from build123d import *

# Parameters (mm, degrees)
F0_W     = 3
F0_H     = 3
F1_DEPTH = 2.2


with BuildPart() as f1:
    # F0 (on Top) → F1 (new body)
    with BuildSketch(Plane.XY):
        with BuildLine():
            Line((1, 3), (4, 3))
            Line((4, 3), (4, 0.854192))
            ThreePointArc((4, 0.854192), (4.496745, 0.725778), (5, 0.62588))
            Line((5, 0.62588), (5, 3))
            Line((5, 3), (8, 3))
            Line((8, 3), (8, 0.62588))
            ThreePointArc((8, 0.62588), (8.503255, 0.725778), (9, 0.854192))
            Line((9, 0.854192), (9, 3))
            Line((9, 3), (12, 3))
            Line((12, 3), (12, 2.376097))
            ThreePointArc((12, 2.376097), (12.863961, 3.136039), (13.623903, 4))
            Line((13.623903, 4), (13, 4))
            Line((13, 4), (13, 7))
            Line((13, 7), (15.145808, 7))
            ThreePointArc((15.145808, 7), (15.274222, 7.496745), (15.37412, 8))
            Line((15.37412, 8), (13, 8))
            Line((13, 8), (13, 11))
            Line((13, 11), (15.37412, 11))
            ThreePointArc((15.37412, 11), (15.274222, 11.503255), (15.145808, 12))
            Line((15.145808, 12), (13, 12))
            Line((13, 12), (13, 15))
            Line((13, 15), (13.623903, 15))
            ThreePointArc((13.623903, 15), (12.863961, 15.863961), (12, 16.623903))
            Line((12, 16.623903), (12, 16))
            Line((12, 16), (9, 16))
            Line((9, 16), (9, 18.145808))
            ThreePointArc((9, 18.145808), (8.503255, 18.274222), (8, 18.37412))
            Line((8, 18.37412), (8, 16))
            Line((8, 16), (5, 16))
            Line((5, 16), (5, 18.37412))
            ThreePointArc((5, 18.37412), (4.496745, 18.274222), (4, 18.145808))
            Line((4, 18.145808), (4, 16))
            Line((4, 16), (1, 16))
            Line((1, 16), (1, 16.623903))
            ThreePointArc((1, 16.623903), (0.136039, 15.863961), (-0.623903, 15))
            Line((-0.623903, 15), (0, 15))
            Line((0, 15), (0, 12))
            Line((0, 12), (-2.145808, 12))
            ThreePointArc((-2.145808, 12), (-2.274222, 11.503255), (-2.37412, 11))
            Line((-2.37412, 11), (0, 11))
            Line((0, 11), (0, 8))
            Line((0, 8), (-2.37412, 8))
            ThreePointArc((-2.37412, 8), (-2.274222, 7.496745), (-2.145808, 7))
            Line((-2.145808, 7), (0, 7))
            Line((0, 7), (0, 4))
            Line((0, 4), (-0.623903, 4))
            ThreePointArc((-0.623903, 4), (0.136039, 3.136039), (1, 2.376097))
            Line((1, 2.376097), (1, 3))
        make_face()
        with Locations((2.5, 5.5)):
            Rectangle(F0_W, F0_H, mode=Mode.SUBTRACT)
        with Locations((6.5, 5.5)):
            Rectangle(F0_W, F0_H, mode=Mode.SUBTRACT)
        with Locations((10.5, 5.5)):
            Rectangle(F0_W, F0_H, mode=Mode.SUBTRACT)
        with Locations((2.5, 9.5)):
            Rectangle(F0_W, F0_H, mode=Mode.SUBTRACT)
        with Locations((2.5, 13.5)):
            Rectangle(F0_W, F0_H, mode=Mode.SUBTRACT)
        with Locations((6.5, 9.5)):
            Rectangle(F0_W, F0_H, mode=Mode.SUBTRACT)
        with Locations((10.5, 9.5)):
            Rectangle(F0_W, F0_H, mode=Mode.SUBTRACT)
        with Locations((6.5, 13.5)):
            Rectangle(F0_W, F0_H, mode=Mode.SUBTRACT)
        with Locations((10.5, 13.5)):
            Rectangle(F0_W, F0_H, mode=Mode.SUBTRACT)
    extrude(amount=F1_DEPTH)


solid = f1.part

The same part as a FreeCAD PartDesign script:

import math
import FreeCAD as App
import Part
import Sketcher

V = App.Vector
Q = App.Units.Quantity


def add_polygon(sketch, points):
    """Adds a closed chain of lines whose ends are joined by coincident constraints."""
    first, n = sketch.GeometryCount, len(points)
    for a, b in zip(points, points[1:] + points[:1]):
        sketch.addGeometry(Part.LineSegment(App.Vector(*a, 0), App.Vector(*b, 0)), False)
    for i in range(n):
        sketch.addConstraint(Sketcher.Constraint("Coincident", first + i, 2, first + (i + 1) % n, 1))

doc = App.newDocument("Part")
body = doc.addObject("PartDesign::Body", "Body")

# Sketch on XY plane
sketch1 = body.newObject("Sketcher::SketchObject", "Sketch")
sketch1.AttachmentSupport = (doc.getObject("XY_Plane"), [""])
sketch1.MapMode = "FlatFace"
sketch1.addGeometry(Part.LineSegment(V(1, 3, 0), V(4, 3, 0)), False)  # 0
sketch1.addGeometry(Part.LineSegment(V(4, 3, 0), V(4, 0.854192, 0)), False)  # 1
sketch1.addGeometry(Part.ArcOfCircle(Part.Circle(V(6.499994, 9.499951, 0), V(0, 0, 1), 8.999951), math.radians(-106.127669), math.radians(-99.594081)), False)  # 2
sketch1.addGeometry(Part.LineSegment(V(5, 0.62588, 0), V(5, 3, 0)), False)  # 3
sketch1.addGeometry(Part.LineSegment(V(5, 3, 0), V(8, 3, 0)), False)  # 4
sketch1.addGeometry(Part.LineSegment(V(8, 3, 0), V(8, 0.62588, 0)), False)  # 5
sketch1.addGeometry(Part.ArcOfCircle(Part.Circle(V(6.500006, 9.499951, 0), V(0, 0, 1), 8.999951), math.radians(-80.405919), math.radians(-73.872331)), False)  # 6
sketch1.addGeometry(Part.LineSegment(V(9, 0.854192, 0), V(9, 3, 0)), False)  # 7
sketch1.addGeometry(Part.LineSegment(V(9, 3, 0), V(12, 3, 0)), False)  # 8
sketch1.addGeometry(Part.LineSegment(V(12, 3, 0), V(12, 2.376097, 0)), False)  # 9
sketch1.addGeometry(Part.ArcOfCircle(Part.Circle(V(6.500025, 9.499975, 0), V(0, 0, 1), 8.999964), math.radians(-52.33014), math.radians(-37.66986)), False)  # 10
sketch1.addGeometry(Part.LineSegment(V(13.623903, 4, 0), V(13, 4, 0)), False)  # 11
sketch1.addGeometry(Part.LineSegment(V(13, 4, 0), V(13, 7, 0)), False)  # 12
sketch1.addGeometry(Part.LineSegment(V(13, 7, 0), V(15.145808, 7, 0)), False)  # 13
sketch1.addGeometry(Part.ArcOfCircle(Part.Circle(V(6.500049, 9.499994, 0), V(0, 0, 1), 8.999951), math.radians(-16.127669), math.radians(-9.594081)), False)  # 14
sketch1.addGeometry(Part.LineSegment(V(15.37412, 8, 0), V(13, 8, 0)), False)  # 15
sketch1.addGeometry(Part.LineSegment(V(13, 8, 0), V(13, 11, 0)), False)  # 16
sketch1.addGeometry(Part.LineSegment(V(13, 11, 0), V(15.37412, 11, 0)), False)  # 17
sketch1.addGeometry(Part.ArcOfCircle(Part.Circle(V(6.500049, 9.500006, 0), V(0, 0, 1), 8.999951), math.radians(9.594081), math.radians(16.127669)), False)  # 18
sketch1.addGeometry(Part.LineSegment(V(15.145808, 12, 0), V(13, 12, 0)), False)  # 19
sketch1.addGeometry(Part.LineSegment(V(13, 12, 0), V(13, 15, 0)), False)  # 20
sketch1.addGeometry(Part.LineSegment(V(13, 15, 0), V(13.623903, 15, 0)), False)  # 21
sketch1.addGeometry(Part.ArcOfCircle(Part.Circle(V(6.500025, 9.500025, 0), V(0, 0, 1), 8.999964), math.radians(37.66986), math.radians(52.33014)), False)  # 22
sketch1.addGeometry(Part.LineSegment(V(12, 16.623903, 0), V(12, 16, 0)), False)  # 23
sketch1.addGeometry(Part.LineSegment(V(12, 16, 0), V(9, 16, 0)), False)  # 24
sketch1.addGeometry(Part.LineSegment(V(9, 16, 0), V(9, 18.145808, 0)), False)  # 25
sketch1.addGeometry(Part.ArcOfCircle(Part.Circle(V(6.500006, 9.500049, 0), V(0, 0, 1), 8.999951), math.radians(73.872331), math.radians(80.405919)), False)  # 26
sketch1.addGeometry(Part.LineSegment(V(8, 18.37412, 0), V(8, 16, 0)), False)  # 27
sketch1.addGeometry(Part.LineSegment(V(8, 16, 0), V(5, 16, 0)), False)  # 28
sketch1.addGeometry(Part.LineSegment(V(5, 16, 0), V(5, 18.37412, 0)), False)  # 29
sketch1.addGeometry(Part.ArcOfCircle(Part.Circle(V(6.499994, 9.500049, 0), V(0, 0, 1), 8.999951), math.radians(99.594081), math.radians(106.127669)), False)  # 30
sketch1.addGeometry(Part.LineSegment(V(4, 18.145808, 0), V(4, 16, 0)), False)  # 31
sketch1.addGeometry(Part.LineSegment(V(4, 16, 0), V(1, 16, 0)), False)  # 32
sketch1.addGeometry(Part.LineSegment(V(1, 16, 0), V(1, 16.623903, 0)), False)  # 33
sketch1.addGeometry(Part.ArcOfCircle(Part.Circle(V(6.499975, 9.500025, 0), V(0, 0, 1), 8.999964), math.radians(127.66986), math.radians(142.33014)), False)  # 34
sketch1.addGeometry(Part.LineSegment(V(-0.623903, 15, 0), V(0, 15, 0)), False)  # 35
sketch1.addGeometry(Part.LineSegment(V(0, 15, 0), V(0, 12, 0)), False)  # 36
sketch1.addGeometry(Part.LineSegment(V(0, 12, 0), V(-2.145808, 12, 0)), False)  # 37
sketch1.addGeometry(Part.ArcOfCircle(Part.Circle(V(6.499951, 9.500006, 0), V(0, 0, 1), 8.999951), math.radians(163.872331), math.radians(170.405919)), False)  # 38
sketch1.addGeometry(Part.LineSegment(V(-2.37412, 11, 0), V(0, 11, 0)), False)  # 39
sketch1.addGeometry(Part.LineSegment(V(0, 11, 0), V(0, 8, 0)), False)  # 40
sketch1.addGeometry(Part.LineSegment(V(0, 8, 0), V(-2.37412, 8, 0)), False)  # 41
sketch1.addGeometry(Part.ArcOfCircle(Part.Circle(V(6.499951, 9.499994, 0), V(0, 0, 1), 8.999951), math.radians(-170.405919), math.radians(-163.872331)), False)  # 42
sketch1.addGeometry(Part.LineSegment(V(-2.145808, 7, 0), V(0, 7, 0)), False)  # 43
sketch1.addGeometry(Part.LineSegment(V(0, 7, 0), V(0, 4, 0)), False)  # 44
sketch1.addGeometry(Part.LineSegment(V(0, 4, 0), V(-0.623903, 4, 0)), False)  # 45
sketch1.addGeometry(Part.ArcOfCircle(Part.Circle(V(6.499975, 9.499975, 0), V(0, 0, 1), 8.999964), math.radians(-142.33014), math.radians(-127.66986)), False)  # 46
sketch1.addGeometry(Part.LineSegment(V(1, 2.376097, 0), V(1, 3, 0)), False)  # 47
add_polygon(sketch1, [(4, 4), (1, 4), (1, 7), (4, 7)])  # lines 48-51
add_polygon(sketch1, [(8, 4), (5, 4), (5, 7), (8, 7)])  # lines 52-55
add_polygon(sketch1, [(12, 4), (9, 4), (9, 7), (12, 7)])  # lines 56-59
add_polygon(sketch1, [(4, 8), (1, 8), (1, 11), (4, 11)])  # lines 60-63
add_polygon(sketch1, [(4, 12), (1, 12), (1, 15), (4, 15)])  # lines 64-67
add_polygon(sketch1, [(8, 8), (5, 8), (5, 11), (8, 11)])  # lines 68-71
add_polygon(sketch1, [(12, 8), (9, 8), (9, 11), (12, 11)])  # lines 72-75
add_polygon(sketch1, [(8, 12), (5, 12), (5, 15), (8, 15)])  # lines 76-79
add_polygon(sketch1, [(12, 12), (9, 12), (9, 15), (12, 15)])  # lines 80-83
sketch1.addConstraint([
    Sketcher.Constraint("Coincident", 0, 2, 1, 1),
    Sketcher.Constraint("Coincident", 1, 2, 2, 1),
    Sketcher.Constraint("Coincident", 2, 2, 3, 1),
    Sketcher.Constraint("Coincident", 3, 2, 4, 1),
    Sketcher.Constraint("Coincident", 4, 2, 5, 1),
    Sketcher.Constraint("Coincident", 5, 2, 6, 1),
    Sketcher.Constraint("Coincident", 6, 2, 7, 1),
    Sketcher.Constraint("Coincident", 7, 2, 8, 1),
    Sketcher.Constraint("Coincident", 8, 2, 9, 1),
    Sketcher.Constraint("Coincident", 9, 2, 10, 1),
    Sketcher.Constraint("Coincident", 10, 2, 11, 1),
    Sketcher.Constraint("Coincident", 11, 2, 12, 1),
    Sketcher.Constraint("Coincident", 12, 2, 13, 1),
    Sketcher.Constraint("Coincident", 13, 2, 14, 1),
    Sketcher.Constraint("Coincident", 14, 2, 15, 1),
    Sketcher.Constraint("Coincident", 15, 2, 16, 1),
    Sketcher.Constraint("Coincident", 16, 2, 17, 1),
    Sketcher.Constraint("Coincident", 17, 2, 18, 1),
    Sketcher.Constraint("Coincident", 18, 2, 19, 1),
    Sketcher.Constraint("Coincident", 19, 2, 20, 1),
    Sketcher.Constraint("Coincident", 20, 2, 21, 1),
    Sketcher.Constraint("Coincident", 21, 2, 22, 1),
    Sketcher.Constraint("Coincident", 22, 2, 23, 1),
    Sketcher.Constraint("Coincident", 23, 2, 24, 1),
    Sketcher.Constraint("Coincident", 24, 2, 25, 1),
    Sketcher.Constraint("Coincident", 25, 2, 26, 1),
    Sketcher.Constraint("Coincident", 26, 2, 27, 1),
    Sketcher.Constraint("Coincident", 27, 2, 28, 1),
    Sketcher.Constraint("Coincident", 28, 2, 29, 1),
    Sketcher.Constraint("Coincident", 29, 2, 30, 1),
    Sketcher.Constraint("Coincident", 30, 2, 31, 1),
    Sketcher.Constraint("Coincident", 31, 2, 32, 1),
    Sketcher.Constraint("Coincident", 32, 2, 33, 1),
    Sketcher.Constraint("Coincident", 33, 2, 34, 1),
    Sketcher.Constraint("Coincident", 34, 2, 35, 1),
    Sketcher.Constraint("Coincident", 35, 2, 36, 1),
    Sketcher.Constraint("Coincident", 36, 2, 37, 1),
    Sketcher.Constraint("Coincident", 37, 2, 38, 1),
    Sketcher.Constraint("Coincident", 38, 2, 39, 1),
    Sketcher.Constraint("Coincident", 39, 2, 40, 1),
    Sketcher.Constraint("Coincident", 40, 2, 41, 1),
    Sketcher.Constraint("Coincident", 41, 2, 42, 1),
    Sketcher.Constraint("Coincident", 42, 2, 43, 1),
    Sketcher.Constraint("Coincident", 43, 2, 44, 1),
    Sketcher.Constraint("Coincident", 44, 2, 45, 1),
    Sketcher.Constraint("Coincident", 45, 2, 46, 1),
    Sketcher.Constraint("Coincident", 46, 2, 47, 1),
    Sketcher.Constraint("Coincident", 47, 2, 0, 1),
    Sketcher.Constraint("Horizontal", 0),
    Sketcher.Constraint("Vertical", 1),
    Sketcher.Constraint("Vertical", 3),
    Sketcher.Constraint("Horizontal", 4),
    Sketcher.Constraint("Vertical", 5),
    Sketcher.Constraint("Vertical", 7),
    Sketcher.Constraint("Horizontal", 8),
    Sketcher.Constraint("Vertical", 9),
    Sketcher.Constraint("Horizontal", 11),
    Sketcher.Constraint("Vertical", 12),
    Sketcher.Constraint("Horizontal", 13),
    Sketcher.Constraint("Horizontal", 15),
    Sketcher.Constraint("Vertical", 16),
    Sketcher.Constraint("Horizontal", 17),
    Sketcher.Constraint("Horizontal", 19),
    Sketcher.Constraint("Vertical", 20),
    Sketcher.Constraint("Horizontal", 21),
    Sketcher.Constraint("Vertical", 23),
    Sketcher.Constraint("Horizontal", 24),
    Sketcher.Constraint("Vertical", 25),
    Sketcher.Constraint("Vertical", 27),
    Sketcher.Constraint("Horizontal", 28),
    Sketcher.Constraint("Vertical", 29),
    Sketcher.Constraint("Vertical", 31),
    Sketcher.Constraint("Horizontal", 32),
    Sketcher.Constraint("Vertical", 33),
    Sketcher.Constraint("Horizontal", 35),
    Sketcher.Constraint("Vertical", 36),
    Sketcher.Constraint("Horizontal", 37),
    Sketcher.Constraint("Horizontal", 39),
    Sketcher.Constraint("Vertical", 40),
    Sketcher.Constraint("Horizontal", 41),
    Sketcher.Constraint("Horizontal", 43),
    Sketcher.Constraint("Vertical", 44),
    Sketcher.Constraint("Horizontal", 45),
    Sketcher.Constraint("Vertical", 47),
    Sketcher.Constraint("Horizontal", 48),
    Sketcher.Constraint("Vertical", 49),
    Sketcher.Constraint("Horizontal", 50),
    Sketcher.Constraint("Vertical", 51),
    Sketcher.Constraint("Horizontal", 52),
    Sketcher.Constraint("Vertical", 53),
    Sketcher.Constraint("Horizontal", 54),
    Sketcher.Constraint("Vertical", 55),
    Sketcher.Constraint("Horizontal", 56),
    Sketcher.Constraint("Vertical", 57),
    Sketcher.Constraint("Horizontal", 58),
    Sketcher.Constraint("Vertical", 59),
    Sketcher.Constraint("Horizontal", 60),
    Sketcher.Constraint("Vertical", 61),
    Sketcher.Constraint("Horizontal", 62),
    Sketcher.Constraint("Vertical", 63),
    Sketcher.Constraint("Horizontal", 64),
    Sketcher.Constraint("Vertical", 65),
    Sketcher.Constraint("Horizontal", 66),
    Sketcher.Constraint("Vertical", 67),
    Sketcher.Constraint("Horizontal", 68),
    Sketcher.Constraint("Vertical", 69),
    Sketcher.Constraint("Horizontal", 70),
    Sketcher.Constraint("Vertical", 71),
    Sketcher.Constraint("Horizontal", 72),
    Sketcher.Constraint("Vertical", 73),
    Sketcher.Constraint("Horizontal", 74),
    Sketcher.Constraint("Vertical", 75),
    Sketcher.Constraint("Horizontal", 76),
    Sketcher.Constraint("Vertical", 77),
    Sketcher.Constraint("Horizontal", 78),
    Sketcher.Constraint("Vertical", 79),
    Sketcher.Constraint("Horizontal", 80),
    Sketcher.Constraint("Vertical", 81),
    Sketcher.Constraint("Horizontal", 82),
    Sketcher.Constraint("Vertical", 83),
    Sketcher.Constraint("Equal", 2, 6),
    Sketcher.Constraint("Equal", 6, 14),
    Sketcher.Constraint("Equal", 14, 18),
    Sketcher.Constraint("Equal", 10, 22),
    Sketcher.Constraint("Equal", 18, 26),
    Sketcher.Constraint("Equal", 26, 30),
    Sketcher.Constraint("Equal", 22, 34),
    Sketcher.Constraint("Equal", 30, 38),
    Sketcher.Constraint("Equal", 38, 42),
    Sketcher.Constraint("Equal", 34, 46),
    Sketcher.Constraint("PointOnObject", 35, 2, -2),
    Sketcher.Constraint("PointOnObject", 39, 2, -2),
    Sketcher.Constraint("PointOnObject", 43, 2, -2),
    Sketcher.Constraint("Horizontal", 2, 3, 6, 3),
    Sketcher.Constraint("Horizontal", 26, 3, 30, 3),
    Sketcher.Constraint("Horizontal", 22, 3, 34, 3),
    Sketcher.Constraint("Horizontal", 18, 3, 38, 3),
    Sketcher.Constraint("Horizontal", 14, 3, 42, 3),
    Sketcher.Constraint("Horizontal", 10, 3, 46, 3),
    Sketcher.Constraint("Horizontal", 0, 2, 3, 2),
    Sketcher.Constraint("Horizontal", 2, 2, 5, 2),
    Sketcher.Constraint("Horizontal", 1, 2, 6, 2),
    Sketcher.Constraint("Horizontal", 4, 2, 7, 2),
    Sketcher.Constraint("Horizontal", 24, 2, 27, 2),
    Sketcher.Constraint("Horizontal", 26, 2, 29, 2),
    Sketcher.Constraint("Horizontal", 25, 2, 30, 2),
    Sketcher.Constraint("Horizontal", 28, 2, 31, 2),
    Sketcher.Constraint("Horizontal", 22, 2, 33, 2),
    Sketcher.Constraint("Horizontal", 21, 2, 34, 2),
    Sketcher.Constraint("Horizontal", 19, 2, 36, 2),
    Sketcher.Constraint("Horizontal", 17, 2, 38, 2),
    Sketcher.Constraint("Horizontal", 15, 2, 40, 2),
    Sketcher.Constraint("Horizontal", 13, 2, 42, 2),
    Sketcher.Constraint("Horizontal", 11, 2, 44, 2),
    Sketcher.Constraint("Horizontal", 9, 2, 46, 2),
    Sketcher.Constraint("Horizontal", 45, 2, 48, 2),
    Sketcher.Constraint("Horizontal", 43, 2, 49, 2),
    Sketcher.Constraint("Horizontal", 51, 2, 52, 2),
    Sketcher.Constraint("Horizontal", 50, 2, 53, 2),
    Sketcher.Constraint("Horizontal", 55, 2, 56, 2),
    Sketcher.Constraint("Horizontal", 54, 2, 57, 2),
    Sketcher.Constraint("Horizontal", 41, 2, 60, 2),
    Sketcher.Constraint("Horizontal", 39, 2, 61, 2),
    Sketcher.Constraint("Horizontal", 37, 2, 64, 2),
    Sketcher.Constraint("Horizontal", 35, 2, 65, 2),
    Sketcher.Constraint("Horizontal", 63, 2, 68, 2),
    Sketcher.Constraint("Horizontal", 62, 2, 69, 2),
    Sketcher.Constraint("Horizontal", 71, 2, 72, 2),
    Sketcher.Constraint("Horizontal", 70, 2, 73, 2),
    Sketcher.Constraint("Horizontal", 67, 2, 76, 2),
    Sketcher.Constraint("Horizontal", 66, 2, 77, 2),
    Sketcher.Constraint("Horizontal", 79, 2, 80, 2),
    Sketcher.Constraint("Horizontal", 78, 2, 81, 2),
    Sketcher.Constraint("Vertical", 14, 3, 18, 3),
    Sketcher.Constraint("Vertical", 10, 3, 22, 3),
    Sketcher.Constraint("Vertical", 6, 3, 26, 3),
    Sketcher.Constraint("Vertical", 2, 3, 30, 3),
    Sketcher.Constraint("Vertical", 38, 3, 42, 3),
    Sketcher.Constraint("Vertical", 34, 3, 46, 3),
    Sketcher.Constraint("Vertical", 12, 2, 15, 2),
    Sketcher.Constraint("Vertical", 14, 2, 17, 2),
    Sketcher.Constraint("Vertical", 13, 2, 18, 2),
    Sketcher.Constraint("Vertical", 16, 2, 19, 2),
    Sketcher.Constraint("Vertical", 10, 2, 21, 2),
    Sketcher.Constraint("Vertical", 9, 2, 22, 2),
    Sketcher.Constraint("Vertical", 7, 2, 24, 2),
    Sketcher.Constraint("Vertical", 5, 2, 26, 2),
    Sketcher.Constraint("Vertical", 47, 2, 48, 2),
    Sketcher.Constraint("Vertical", 31, 2, 50, 2),
    Sketcher.Constraint("Vertical", 29, 2, 52, 2),
    Sketcher.Constraint("Vertical", 27, 2, 54, 2),
    Sketcher.Constraint("Vertical", 25, 2, 56, 2),
    Sketcher.Constraint("Vertical", 23, 2, 58, 2),
    Sketcher.Constraint("Vertical", 49, 2, 60, 2),
    Sketcher.Constraint("Vertical", 51, 2, 62, 2),
    Sketcher.Constraint("Vertical", 61, 2, 64, 2),
    Sketcher.Constraint("Vertical", 63, 2, 66, 2),
    Sketcher.Constraint("Vertical", 53, 2, 68, 2),
    Sketcher.Constraint("Vertical", 55, 2, 70, 2),
    Sketcher.Constraint("Vertical", 57, 2, 72, 2),
    Sketcher.Constraint("Vertical", 59, 2, 74, 2),
    Sketcher.Constraint("Vertical", 69, 2, 76, 2),
    Sketcher.Constraint("Vertical", 71, 2, 78, 2),
    Sketcher.Constraint("Vertical", 73, 2, 80, 2),
    Sketcher.Constraint("Vertical", 75, 2, 82, 2),
    Sketcher.Constraint("Equal", 0, 4),
    Sketcher.Constraint("Equal", 4, 8),
    Sketcher.Constraint("Equal", 21, 35),
    Sketcher.Constraint("Equal", 19, 37),
    Sketcher.Constraint("Equal", 43, 1),
    Sketcher.Constraint("Equal", 41, 3),
    Sketcher.Constraint("Equal", 45, 9),
    Sketcher.Constraint("Equal", 82, 12),
    Sketcher.Constraint("Equal", 12, 16),
    Sketcher.Constraint("Equal", 16, 20),
    Sketcher.Constraint("Equal", 9, 23),
    Sketcher.Constraint("Equal", 7, 25),
    Sketcher.Constraint("DistanceX", 0, 1, 0, 2, Q("3 mm")),
    Sketcher.Constraint("DistanceX", -1, 1, 0, 2, Q("4 mm")),
    Sketcher.Constraint("DistanceY", -1, 1, 0, 2, Q("3 mm")),
    Sketcher.Constraint("DistanceX", -1, 1, 2, 2, Q("5 mm")),
    Sketcher.Constraint("DistanceY", -1, 1, 10, 2, Q("4 mm")),
    Sketcher.Constraint("DistanceY", -1, 1, 14, 2, Q("8 mm")),
    Sketcher.Constraint("Radius", 2, Q("8.999951 mm")),
    Sketcher.Constraint("Radius", 10, Q("8.999964 mm")),
    Sketcher.Constraint("DistanceX", 13, 1, 13, 2, Q("2.145808 mm")),
    Sketcher.Constraint("DistanceX", 15, 2, 15, 1, Q("2.37412 mm")),
    Sketcher.Constraint("DistanceX", 11, 2, 11, 1, Q("0.623903 mm")),
])
pad1 = body.newObject("PartDesign::Pad", "Pad")
pad1.Profile = sketch1
pad1.Length = 2.2

doc.recompute()
